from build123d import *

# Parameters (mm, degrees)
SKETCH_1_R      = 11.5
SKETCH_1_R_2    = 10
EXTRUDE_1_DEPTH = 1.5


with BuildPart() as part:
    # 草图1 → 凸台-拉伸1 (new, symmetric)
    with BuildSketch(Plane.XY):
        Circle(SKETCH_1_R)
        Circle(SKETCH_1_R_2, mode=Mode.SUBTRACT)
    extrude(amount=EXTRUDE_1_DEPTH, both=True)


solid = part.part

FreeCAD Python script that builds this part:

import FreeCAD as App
import Part
import Sketcher
Q = App.Units.Quantity

doc = App.newDocument("Part")
body = doc.addObject("PartDesign::Body", "Body")

# Sketch on XY plane
sketch1 = doc.addObject("Sketcher::SketchObject", "Sketch")
body.addObject(sketch1)
sketch1.AttachmentSupport = (doc.XY_Plane, [""])
sketch1.MapMode = "FlatFace"
sketch1.addGeometry([
    Part.Circle(App.Vector(0, 0, 0), App.Vector(0, 0, 1), 11.5),
    Part.Circle(App.Vector(0, 0, 0), App.Vector(0, 0, 1), 10),
], False)
sketch1.addConstraint([
    Sketcher.Constraint("Coincident", 0, 3, -1, 1),
    Sketcher.Constraint("Coincident", 1, 3, -1, 1),
    Sketcher.Constraint("Diameter", 0, Q("23 mm")),
    Sketcher.Constraint("Diameter", 1, Q("20 mm")),
])
pad1 = doc.addObject("PartDesign::Pad", "Pad")
body.addObject(pad1)
pad1.Profile = sketch1
pad1.Length = 3
pad1.Midplane = True

doc.recompute()
